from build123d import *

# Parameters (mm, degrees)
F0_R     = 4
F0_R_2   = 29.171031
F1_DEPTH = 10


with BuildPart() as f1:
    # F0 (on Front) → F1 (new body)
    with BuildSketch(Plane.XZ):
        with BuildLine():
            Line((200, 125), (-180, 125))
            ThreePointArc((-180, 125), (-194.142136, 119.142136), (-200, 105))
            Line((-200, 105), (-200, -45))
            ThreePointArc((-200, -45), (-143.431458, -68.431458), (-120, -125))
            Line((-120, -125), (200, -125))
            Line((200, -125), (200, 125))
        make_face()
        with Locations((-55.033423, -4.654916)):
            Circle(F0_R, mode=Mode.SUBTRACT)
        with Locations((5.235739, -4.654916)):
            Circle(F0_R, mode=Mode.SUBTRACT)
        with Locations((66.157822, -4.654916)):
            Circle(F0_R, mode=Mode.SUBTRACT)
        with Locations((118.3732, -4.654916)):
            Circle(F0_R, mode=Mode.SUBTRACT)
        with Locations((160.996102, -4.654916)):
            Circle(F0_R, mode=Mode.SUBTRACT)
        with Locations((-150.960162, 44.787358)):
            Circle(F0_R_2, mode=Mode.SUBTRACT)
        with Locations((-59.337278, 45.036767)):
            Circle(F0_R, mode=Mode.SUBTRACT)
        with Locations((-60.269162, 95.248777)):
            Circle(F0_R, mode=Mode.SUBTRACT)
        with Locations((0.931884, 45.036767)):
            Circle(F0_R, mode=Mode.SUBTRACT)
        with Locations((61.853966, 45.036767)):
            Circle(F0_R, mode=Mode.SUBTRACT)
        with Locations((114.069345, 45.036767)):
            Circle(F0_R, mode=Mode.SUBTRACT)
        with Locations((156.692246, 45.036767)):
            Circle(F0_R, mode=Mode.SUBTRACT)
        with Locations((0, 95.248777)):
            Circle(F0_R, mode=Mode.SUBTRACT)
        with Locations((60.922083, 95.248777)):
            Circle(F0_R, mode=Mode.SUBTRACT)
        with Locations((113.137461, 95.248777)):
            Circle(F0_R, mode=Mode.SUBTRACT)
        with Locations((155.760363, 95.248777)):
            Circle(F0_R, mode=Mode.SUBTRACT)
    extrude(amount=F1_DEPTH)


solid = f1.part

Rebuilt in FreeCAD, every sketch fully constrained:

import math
import FreeCAD as App
import Part
import Sketcher
Q = App.Units.Quantity

doc = App.newDocument("Part")
body = doc.addObject("PartDesign::Body", "Body")

sketch1 = body.newObject("Sketcher::SketchObject", "Sketch")
sketch1.AttachmentSupport = (doc.getObject("XZ_Plane"), [""])
sketch1.MapMode = "FlatFace"
sketch1.addGeometry([
    Part.LineSegment(App.Vector(200, 125, 0), App.Vector(-180, 125, 0)),
    Part.ArcOfCircle(Part.Circle(App.Vector(-180, 105, 0), App.Vector(0, 0, 1), 20), math.radians(90), math.radians(180)),
    Part.LineSegment(App.Vector(-200, 105, 0), App.Vector(-200, -45, 0)),
    Part.ArcOfCircle(Part.Circle(App.Vector(-200, -125, 0), App.Vector(0, 0, 1), 80), math.radians(0), math.radians(90)),
    Part.LineSegment(App.Vector(-120, -125, 0), App.Vector(200, -125, 0)),
    Part.LineSegment(App.Vector(200, -125, 0), App.Vector(200, 125, 0)),
    Part.Circle(App.Vector(-55, -4.7, 0), App.Vector(0, 0, 1), 4),
    Part.Circle(App.Vector(-151, 44.8, 0), App.Vector(0, 0, 1), 29.2),
    Part.Circle(App.Vector(-59.3, 45, 0), App.Vector(0, 0, 1), 4),
    Part.Circle(App.Vector(5.2, -4.7, 0), App.Vector(0, 0, 1), 4),
    Part.Circle(App.Vector(66.2, -4.7, 0), App.Vector(0, 0, 1), 4),
    Part.Circle(App.Vector(118.4, -4.7, 0), App.Vector(0, 0, 1), 4),
    Part.Circle(App.Vector(161, -4.7, 0), App.Vector(0, 0, 1), 4),
    Part.Circle(App.Vector(0.9, 45, 0), App.Vector(0, 0, 1), 4),
    Part.Circle(App.Vector(61.9, 45, 0), App.Vector(0, 0, 1), 4),
    Part.Circle(App.Vector(114.1, 45, 0), App.Vector(0, 0, 1), 4),
    Part.Circle(App.Vector(156.7, 45, 0), App.Vector(0, 0, 1), 4),
    Part.Circle(App.Vector(-60.3, 95.2, 0), App.Vector(0, 0, 1), 4),
    Part.Circle(App.Vector(0, 95.2, 0), App.Vector(0, 0, 1), 4),
    Part.Circle(App.Vector(60.9, 95.2, 0), App.Vector(0, 0, 1), 4),
    Part.Circle(App.Vector(113.1, 95.2, 0), App.Vector(0, 0, 1), 4),
    Part.Circle(App.Vector(155.8, 95.2, 0), App.Vector(0, 0, 1), 4),
], False)
sketch1.addConstraint([
    Sketcher.Constraint("Tangent", 0, 2, 1, 1),
    Sketcher.Constraint("Tangent", 1, 2, 2, 1),
    Sketcher.Constraint("Coincident", 2, 2, 3, 2),
    Sketcher.Constraint("Coincident", 3, 1, 4, 1),
    Sketcher.Constraint("Coincident", 4, 2, 5, 1),
    Sketcher.Constraint("Coincident", 5, 2, 0, 1),
    Sketcher.Constraint("Horizontal", 0),
    Sketcher.Constraint("Vertical", 2),
    Sketcher.Constraint("Horizontal", 4),
    Sketcher.Constraint("Vertical", 5),
    Sketcher.Constraint("Equal", 6, 8),
    Sketcher.Constraint("Equal", 8, 9),
    Sketcher.Constraint("Equal", 9, 10),
    Sketcher.Constraint("Equal", 10, 11),
    Sketcher.Constraint("Equal", 11, 12),
    Sketcher.Constraint("Equal", 12, 13),
    Sketcher.Constraint("Equal", 13, 14),
    Sketcher.Constraint("Equal", 14, 15),
    Sketcher.Constraint("Equal", 15, 16),
    Sketcher.Constraint("Equal", 16, 17),
    Sketcher.Constraint("Equal", 17, 18),
    Sketcher.Constraint("Equal", 18, 19),
    Sketcher.Constraint("Equal", 19, 20),
    Sketcher.Constraint("Equal", 20, 21),
    Sketcher.Constraint("PointOnObject", 18, 3, -2),
    Sketcher.Constraint("Horizontal", 6, 3, 9, 3),
    Sketcher.Constraint("Horizontal", 9, 3, 10, 3),
    Sketcher.Constraint("Horizontal", 10, 3, 11, 3),
    Sketcher.Constraint("Horizontal", 11, 3, 12, 3),
    Sketcher.Constraint("Horizontal", 8, 3, 13, 3),
    Sketcher.Constraint("Horizontal", 13, 3, 14, 3),
    Sketcher.Constraint("Horizontal", 14, 3, 15, 3),
    Sketcher.Constraint("Horizontal", 15, 3, 16, 3),
    Sketcher.Constraint("Horizontal", 17, 3, 18, 3),
    Sketcher.Constraint("Horizontal", 18, 3, 19, 3),
    Sketcher.Constraint("Horizontal", 19, 3, 20, 3),
    Sketcher.Constraint("Horizontal", 20, 3, 21, 3),
    Sketcher.Constraint("Vertical", 3, 3, 1, 2),
    Sketcher.Constraint("Diameter", 6, Q("8 mm")),
    Sketcher.Constraint("Radius", 1, Q("19.999999 mm")),
    Sketcher.Constraint("Radius", 3, Q("80.000002 mm")),
    Sketcher.Constraint("DistanceX", 0, 2, 0, 1, Q("380 mm")),
    Sketcher.Constraint("DistanceY", 2, 2, 2, 1, Q("150 mm")),
    Sketcher.Constraint("DistanceY", 5, 1, 5, 2, Q("250 mm")),
    Sketcher.Constraint("DistanceX", 1, 3, -1, 1, Q("180.000001 mm")),
    Sketcher.Constraint("DistanceY", -1, 1, 1, 3, Q("105.000001 mm")),
    Sketcher.Constraint("Diameter", 7, Q("58.342062 mm")),
    Sketcher.Constraint("DistanceX", 7, 3, 17, 3, Q("90.691 mm")),
    Sketcher.Constraint("DistanceX", -1, 1, 11, 3, Q("118.3732 mm")),
    Sketcher.Constraint("DistanceX", -1, 1, 12, 3, Q("160.996102 mm")),
    Sketcher.Constraint("DistanceX", 7, 3, 9, 3, Q("156.195901 mm")),
    Sketcher.Constraint("DistanceX", 8, 3, 10, 3, Q("125.4951 mm")),
    Sketcher.Constraint("DistanceX", 15, 3, 16, 3, Q("42.622901 mm")),
    Sketcher.Constraint("DistanceX", 13, 3, 19, 3, Q("59.990199 mm")),
    Sketcher.Constraint("DistanceX", 7, 3, -1, 1, Q("150.960162 mm")),
    Sketcher.Constraint("DistanceX", -1, 1, 10, 3, Q("66.157822 mm")),
    Sketcher.Constraint("DistanceX", -1, 1, 20, 3, Q("113.137461 mm")),
    Sketcher.Constraint("DistanceX", 1, 3, 6, 3, Q("124.966578 mm")),
    Sketcher.Constraint("DistanceY", 3, 3, 7, 3, Q("169.78736 mm")),
    Sketcher.Constraint("DistanceY", 7, 3, 8, 3, Q("0.249409 mm")),
    Sketcher.Constraint("DistanceX", 8, 3, 13, 3, Q("60.269162 mm")),
    Sketcher.Constraint("DistanceX", 14, 3, 15, 3, Q("52.215379 mm")),
    Sketcher.Constraint("DistanceX", 13, 3, 15, 3, Q("113.137461 mm")),
    Sketcher.Constraint("DistanceY", 8, 3, 17, 3, Q("50.21201 mm")),
    Sketcher.Constraint("DistanceX", 15, 3, 21, 3, Q("41.691018 mm")),
    Sketcher.Constraint("DistanceY", 6, 3, -1, 1, Q("4.654916 mm")),
])
pad1 = body.newObject("PartDesign::Pad", "Pad")
pad1.Profile = sketch1
pad1.Length = 10

doc.recompute()
